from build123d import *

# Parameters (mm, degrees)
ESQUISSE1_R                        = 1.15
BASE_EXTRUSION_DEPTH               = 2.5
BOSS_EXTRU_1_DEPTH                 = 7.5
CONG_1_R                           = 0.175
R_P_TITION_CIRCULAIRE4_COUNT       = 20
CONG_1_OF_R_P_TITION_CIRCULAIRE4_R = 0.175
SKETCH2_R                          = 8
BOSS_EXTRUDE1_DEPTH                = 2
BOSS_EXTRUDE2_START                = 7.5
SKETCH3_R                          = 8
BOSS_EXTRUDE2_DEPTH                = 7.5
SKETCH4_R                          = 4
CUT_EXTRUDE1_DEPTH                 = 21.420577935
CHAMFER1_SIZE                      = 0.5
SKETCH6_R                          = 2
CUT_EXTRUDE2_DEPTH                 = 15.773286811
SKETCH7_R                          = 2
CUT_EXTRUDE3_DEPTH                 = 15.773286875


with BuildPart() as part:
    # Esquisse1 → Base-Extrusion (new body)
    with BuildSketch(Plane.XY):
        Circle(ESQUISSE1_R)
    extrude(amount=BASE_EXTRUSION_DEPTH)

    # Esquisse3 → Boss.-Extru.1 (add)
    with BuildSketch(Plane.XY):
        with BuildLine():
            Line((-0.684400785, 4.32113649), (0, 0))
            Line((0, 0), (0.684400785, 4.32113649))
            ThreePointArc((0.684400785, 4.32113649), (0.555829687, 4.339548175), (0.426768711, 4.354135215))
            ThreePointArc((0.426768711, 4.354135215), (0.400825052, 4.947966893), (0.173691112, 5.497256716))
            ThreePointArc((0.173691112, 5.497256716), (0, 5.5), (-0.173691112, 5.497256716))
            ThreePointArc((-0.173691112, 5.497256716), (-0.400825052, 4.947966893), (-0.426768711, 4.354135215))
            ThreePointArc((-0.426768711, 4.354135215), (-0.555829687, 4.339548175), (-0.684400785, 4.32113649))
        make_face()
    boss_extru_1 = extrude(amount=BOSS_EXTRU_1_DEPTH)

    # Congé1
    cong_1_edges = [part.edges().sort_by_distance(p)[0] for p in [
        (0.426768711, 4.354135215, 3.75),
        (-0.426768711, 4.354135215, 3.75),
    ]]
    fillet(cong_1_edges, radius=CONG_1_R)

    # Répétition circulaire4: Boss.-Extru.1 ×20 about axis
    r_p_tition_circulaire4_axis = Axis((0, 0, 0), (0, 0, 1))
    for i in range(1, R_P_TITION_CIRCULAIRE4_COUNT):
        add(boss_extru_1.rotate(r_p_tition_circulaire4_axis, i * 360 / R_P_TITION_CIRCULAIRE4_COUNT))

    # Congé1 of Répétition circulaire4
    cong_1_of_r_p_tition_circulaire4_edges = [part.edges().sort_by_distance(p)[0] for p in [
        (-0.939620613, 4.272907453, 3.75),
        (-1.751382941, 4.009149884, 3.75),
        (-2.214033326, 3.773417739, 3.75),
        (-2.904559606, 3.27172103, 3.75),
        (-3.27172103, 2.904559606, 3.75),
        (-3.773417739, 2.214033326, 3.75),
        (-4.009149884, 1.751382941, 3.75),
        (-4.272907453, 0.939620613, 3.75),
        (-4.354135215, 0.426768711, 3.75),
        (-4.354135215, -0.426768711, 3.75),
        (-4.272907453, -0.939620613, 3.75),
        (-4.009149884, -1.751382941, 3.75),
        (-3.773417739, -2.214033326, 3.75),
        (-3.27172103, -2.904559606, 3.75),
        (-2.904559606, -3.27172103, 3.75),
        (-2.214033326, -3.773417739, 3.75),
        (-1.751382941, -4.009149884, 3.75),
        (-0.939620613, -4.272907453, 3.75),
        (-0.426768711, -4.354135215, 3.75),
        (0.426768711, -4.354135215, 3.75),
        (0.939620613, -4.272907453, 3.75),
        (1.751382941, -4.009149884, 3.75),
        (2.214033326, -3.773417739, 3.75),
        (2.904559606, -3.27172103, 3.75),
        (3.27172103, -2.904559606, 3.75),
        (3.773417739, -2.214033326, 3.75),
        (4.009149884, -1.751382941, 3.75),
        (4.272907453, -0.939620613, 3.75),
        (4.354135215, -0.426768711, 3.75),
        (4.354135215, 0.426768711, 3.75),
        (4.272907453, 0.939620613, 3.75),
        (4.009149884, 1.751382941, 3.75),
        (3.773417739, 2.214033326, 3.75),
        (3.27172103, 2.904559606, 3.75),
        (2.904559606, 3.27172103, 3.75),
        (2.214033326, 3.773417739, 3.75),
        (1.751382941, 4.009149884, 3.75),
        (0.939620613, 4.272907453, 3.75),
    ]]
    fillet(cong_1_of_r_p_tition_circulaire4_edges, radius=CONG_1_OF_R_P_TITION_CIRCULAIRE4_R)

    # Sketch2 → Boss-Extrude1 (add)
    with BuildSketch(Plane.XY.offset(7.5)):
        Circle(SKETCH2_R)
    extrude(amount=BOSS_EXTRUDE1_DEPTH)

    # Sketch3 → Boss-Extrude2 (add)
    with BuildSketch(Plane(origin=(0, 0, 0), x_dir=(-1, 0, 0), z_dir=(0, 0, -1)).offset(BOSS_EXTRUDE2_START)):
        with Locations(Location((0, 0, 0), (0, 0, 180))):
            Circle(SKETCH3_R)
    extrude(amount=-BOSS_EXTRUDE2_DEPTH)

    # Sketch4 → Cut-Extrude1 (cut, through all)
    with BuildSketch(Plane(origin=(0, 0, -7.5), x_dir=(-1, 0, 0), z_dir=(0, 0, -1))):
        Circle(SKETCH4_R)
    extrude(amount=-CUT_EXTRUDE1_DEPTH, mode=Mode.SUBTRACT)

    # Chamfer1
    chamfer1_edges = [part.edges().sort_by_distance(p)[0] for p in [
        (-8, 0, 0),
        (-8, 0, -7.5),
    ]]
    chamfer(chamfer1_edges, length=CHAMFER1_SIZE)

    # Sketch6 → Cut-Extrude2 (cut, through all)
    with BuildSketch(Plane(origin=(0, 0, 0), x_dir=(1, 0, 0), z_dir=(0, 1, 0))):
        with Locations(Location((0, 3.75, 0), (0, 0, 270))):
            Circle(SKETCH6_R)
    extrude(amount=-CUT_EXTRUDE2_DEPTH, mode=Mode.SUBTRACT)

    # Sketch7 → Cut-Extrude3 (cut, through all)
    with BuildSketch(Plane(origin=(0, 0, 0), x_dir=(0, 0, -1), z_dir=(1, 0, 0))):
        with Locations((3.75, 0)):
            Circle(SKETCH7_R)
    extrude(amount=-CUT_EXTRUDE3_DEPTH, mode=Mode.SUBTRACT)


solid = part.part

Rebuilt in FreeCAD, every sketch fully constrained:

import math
import FreeCAD as App
import Part
import Sketcher
Q = App.Units.Quantity


def edges_at(feature, points):
    """Names of the edges that pass closest to the given points."""
    edges = feature.Shape.Edges
    near = lambda p: min(range(len(edges)), key=lambda i: edges[i].distToShape(Part.Vertex(*p))[0])
    return sorted({f"Edge{near(p) + 1}" for p in points})

doc = App.newDocument("Part")
body = doc.addObject("PartDesign::Body", "Body")

# Sketch on XY plane
sketch1 = body.newObject("Sketcher::SketchObject", "Sketch")
sketch1.AttachmentSupport = (doc.getObject("XY_Plane"), [""])
sketch1.MapMode = "FlatFace"
sketch1.addGeometry(Part.Circle(App.Vector(0, 0, 0), App.Vector(0, 0, 1), 1.1), False)
sketch1.addConstraint(Sketcher.Constraint("Coincident", 0, 3, -1, 1))
sketch1.addConstraint(Sketcher.Constraint("Diameter", 0, 2.3))
pad1 = body.newObject("PartDesign::Pad", "Pad")
pad1.Profile = sketch1
pad1.Length = 2.5

# Sketch on XY plane
sketch2 = body.newObject("Sketcher::SketchObject", "Sketch001")
sketch2.AttachmentSupport = (doc.getObject("XY_Plane"), [""])
sketch2.MapMode = "FlatFace"
sketch2.addGeometry(Part.LineSegment(App.Vector(-0.68, 4.32, 0), App.Vector(0, 0, 0)), False)
sketch2.addGeometry(Part.LineSegment(App.Vector(0, 0, 0), App.Vector(0.68, 4.32, 0)), False)
sketch2.addGeometry(Part.ArcOfCircle(Part.Circle(App.Vector(0, 0, 0), App.Vector(0, 0, 1), 4.37), math.radians(81), math.radians(84.4)), False)
sketch2.addGeometry(Part.ArcOfCircle(Part.Circle(App.Vector(-1.27, 4.58, 0), App.Vector(0, 0, 1), 1.71), math.radians(-7), math.radians(32)), False)
sketch2.addGeometry(Part.ArcOfCircle(Part.Circle(App.Vector(0, 0, 0), App.Vector(0, 0, 1), 5.5), math.radians(88.19), math.radians(91.81)), False)
sketch2.addGeometry(Part.ArcOfCircle(Part.Circle(App.Vector(1.27, 4.58, 0), App.Vector(0, 0, 1), 1.71), math.radians(148), math.radians(187)), False)
sketch2.addGeometry(Part.ArcOfCircle(Part.Circle(App.Vector(0, 0, 0), App.Vector(0, 0, 1), 4.37), math.radians(95.6), math.radians(99)), False)
sketch2.addConstraint(Sketcher.Constraint("Coincident", 0, 2, 1, 1))
sketch2.addConstraint(Sketcher.Constraint("Coincident", 1, 2, 2, 1))
sketch2.addConstraint(Sketcher.Constraint("Coincident", 2, 2, 3, 1))
sketch2.addConstraint(Sketcher.Constraint("Coincident", 3, 2, 4, 1))
sketch2.addConstraint(Sketcher.Constraint("Coincident", 4, 2, 5, 1))
sketch2.addConstraint(Sketcher.Constraint("Coincident", 5, 2, 6, 1))
sketch2.addConstraint(Sketcher.Constraint("Coincident", 6, 2, 0, 1))
sketch2.addConstraint(Sketcher.Constraint("Coincident", 2, 3, -1, 1))
sketch2.addConstraint(Sketcher.Constraint("Coincident", 4, 3, -1, 1))
sketch2.addConstraint(Sketcher.Constraint("Coincident", 6, 3, -1, 1))
sketch2.addConstraint(Sketcher.Constraint("Coincident", 0, 2, -1, 1))
sketch2.addConstraint(Sketcher.Constraint("Equal", 3, 5))
sketch2.addConstraint(Sketcher.Constraint("Equal", 2, 6))
sketch2.addConstraint(Sketcher.Constraint("Symmetric", 3, 3, 5, 3, -2))
sketch2.addConstraint(Sketcher.Constraint("Horizontal", 1, 2, 6, 2))
sketch2.addConstraint(Sketcher.Constraint("Radius", 4, 5.500001))
sketch2.addConstraint(Sketcher.Constraint("Angle", 0, Q("-81 deg")))
sketch2.addConstraint(Sketcher.Constraint("Radius", 2, 4.374999))
sketch2.addConstraint(Sketcher.Constraint("Radius", 3, 1.714578))
sketch2.addConstraint(Sketcher.Constraint("DistanceY", 1, 2, 2, 2, 0.032999))
sketch2.addConstraint(Sketcher.Constraint("DistanceX", -1, 1, 3, 2, 0.173691))
pad2 = body.newObject("PartDesign::Pad", "Pad001")
pad2.Profile = sketch2
pad2.Length = 7.5
doc.recompute()

fillet = body.newObject("PartDesign::Fillet", "Fillet")
fillet.Base = (pad2, edges_at(pad2, [(0.427, 4.354, 3.75), (-0.427, 4.354, 3.75)]))
fillet.Radius = 0.175
doc.recompute()

polarpattern = body.newObject("PartDesign::PolarPattern", "PolarPattern")
polarpattern.Originals = [pad2]
polarpattern.Axis = (doc.getObject("Z_Axis"), [""])
polarpattern.Angle = 360
polarpattern.Occurrences = 20
body.Tip = polarpattern
doc.recompute()

fillet2 = body.newObject("PartDesign::Fillet", "Fillet001")
fillet2.Base = (polarpattern, edges_at(polarpattern, [
    (-0.94, 4.273, 3.75),
    (-1.751, 4.009, 3.75),
    (-2.214, 3.773, 3.75),
    (-2.905, 3.272, 3.75),
    (-3.272, 2.905, 3.75),
    (-3.773, 2.214, 3.75),
    (-4.009, 1.751, 3.75),
    (-4.273, 0.94, 3.75),
    (-4.354, 0.427, 3.75),
    (-4.354, -0.427, 3.75),
    (-4.273, -0.94, 3.75),
    (-4.009, -1.751, 3.75),
    (-3.773, -2.214, 3.75),
    (-3.272, -2.905, 3.75),
    (-2.905, -3.272, 3.75),
    (-2.214, -3.773, 3.75),
    (-1.751, -4.009, 3.75),
    (-0.94, -4.273, 3.75),
    (-0.427, -4.354, 3.75),
    (0.427, -4.354, 3.75),
    (0.94, -4.273, 3.75),
    (1.751, -4.009, 3.75),
    (2.214, -3.773, 3.75),
    (2.905, -3.272, 3.75),
    (3.272, -2.905, 3.75),
    (3.773, -2.214, 3.75),
    (4.009, -1.751, 3.75),
    (4.273, -0.94, 3.75),
    (4.354, -0.427, 3.75),
    (4.354, 0.427, 3.75),
    (4.273, 0.94, 3.75),
    (4.009, 1.751, 3.75),
    (3.773, 2.214, 3.75),
    (3.272, 2.905, 3.75),
    (2.905, 3.272, 3.75),
    (2.214, 3.773, 3.75),
    (1.751, 4.009, 3.75),
    (0.94, 4.273, 3.75),
]))
fillet2.Radius = 0.175

# Sketch on XY plane
sketch3 = body.newObject("Sketcher::SketchObject", "Sketch002")
sketch3.AttachmentSupport = (doc.getObject("XY_Plane"), [""])
sketch3.MapMode = "FlatFace"
sketch3.AttachmentOffset = App.Placement(App.Vector(0, 0, 7.5), App.Rotation())
sketch3.addGeometry(Part.Circle(App.Vector(0, 0, 0), App.Vector(0, 0, 1), 8), False)
sketch3.addConstraint(Sketcher.Constraint("Coincident", 0, 3, -1, 1))
sketch3.addConstraint(Sketcher.Constraint("Diameter", 0, 16.0))
pad3 = body.newObject("PartDesign::Pad", "Pad002")
pad3.Profile = sketch3
pad3.Length = 2

# Sketch on XY plane
sketch4 = body.newObject("Sketcher::SketchObject", "Sketch003")
sketch4.AttachmentSupport = (doc.getObject("XY_Plane"), [""])
sketch4.MapMode = "FlatFace"
sketch4.AttachmentOffset = App.Placement(App.Vector(0, 0, -7.5), App.Rotation())
sketch4.addGeometry(Part.Circle(App.Vector(0, 0, 0), App.Vector(0, 0, 1), 8), False)
sketch4.addConstraint(Sketcher.Constraint("Coincident", 0, 3, -1, 1))
sketch4.addConstraint(Sketcher.Constraint("Diameter", 0, 16.0))
pad4 = body.newObject("PartDesign::Pad", "Pad003")
pad4.Profile = sketch4
pad4.Length = 7.5

# Sketch on XY plane
sketch5 = body.newObject("Sketcher::SketchObject", "Sketch004")
sketch5.AttachmentSupport = (doc.getObject("XY_Plane"), [""])
sketch5.MapMode = "FlatFace"
sketch5.AttachmentOffset = App.Placement(App.Vector(0, 0, -7.5), App.Rotation())
sketch5.addGeometry(Part.Circle(App.Vector(0, 0, 0), App.Vector(0, 0, 1), 4), False)
sketch5.addConstraint(Sketcher.Constraint("Coincident", 0, 3, -1, 1))
sketch5.addConstraint(Sketcher.Constraint("Diameter", 0, 8.0))
pocket1 = body.newObject("PartDesign::Pocket", "Pocket")
pocket1.Profile = sketch5
pocket1.Type = "ThroughAll"
pocket1.Reversed = True
doc.recompute()

chamfer = body.newObject("PartDesign::Chamfer", "Chamfer")
chamfer.Base = (pocket1, edges_at(pocket1, [(-8, 0, 0), (-8, 0, -7.5)]))
chamfer.Size = 0.5

# Sketch on XZ plane
sketch6 = body.newObject("Sketcher::SketchObject", "Sketch005")
sketch6.AttachmentSupport = (doc.getObject("XZ_Plane"), [""])
sketch6.MapMode = "FlatFace"
sketch6.addGeometry(Part.Circle(App.Vector(0, -3.8, 0), App.Vector(0, 0, 1), 2), False)
sketch6.addConstraint(Sketcher.Constraint("PointOnObject", 0, 3, -2))
sketch6.addConstraint(Sketcher.Constraint("Diameter", 0, 4.0))
sketch6.addConstraint(Sketcher.Constraint("DistanceY", 0, 3, -1, 1, 3.75))
pocket2 = body.newObject("PartDesign::Pocket", "Pocket001")
pocket2.Profile = sketch6
pocket2.Type = "ThroughAll"
pocket2.Reversed = True

# Sketch on YZ plane
sketch7 = body.newObject("Sketcher::SketchObject", "Sketch006")
sketch7.AttachmentSupport = (doc.getObject("YZ_Plane"), [""])
sketch7.MapMode = "FlatFace"
sketch7.addGeometry(Part.Circle(App.Vector(0, -3.8, 0), App.Vector(0, 0, 1), 2), False)
sketch7.addConstraint(Sketcher.Constraint("PointOnObject", 0, 3, -2))
sketch7.addConstraint(Sketcher.Constraint("Diameter", 0, 4.0))
sketch7.addConstraint(Sketcher.Constraint("DistanceY", 0, 3, -1, 1, 3.75))
pocket3 = body.newObject("PartDesign::Pocket", "Pocket002")
pocket3.Profile = sketch7
pocket3.Type = "ThroughAll"

doc.recompute()
